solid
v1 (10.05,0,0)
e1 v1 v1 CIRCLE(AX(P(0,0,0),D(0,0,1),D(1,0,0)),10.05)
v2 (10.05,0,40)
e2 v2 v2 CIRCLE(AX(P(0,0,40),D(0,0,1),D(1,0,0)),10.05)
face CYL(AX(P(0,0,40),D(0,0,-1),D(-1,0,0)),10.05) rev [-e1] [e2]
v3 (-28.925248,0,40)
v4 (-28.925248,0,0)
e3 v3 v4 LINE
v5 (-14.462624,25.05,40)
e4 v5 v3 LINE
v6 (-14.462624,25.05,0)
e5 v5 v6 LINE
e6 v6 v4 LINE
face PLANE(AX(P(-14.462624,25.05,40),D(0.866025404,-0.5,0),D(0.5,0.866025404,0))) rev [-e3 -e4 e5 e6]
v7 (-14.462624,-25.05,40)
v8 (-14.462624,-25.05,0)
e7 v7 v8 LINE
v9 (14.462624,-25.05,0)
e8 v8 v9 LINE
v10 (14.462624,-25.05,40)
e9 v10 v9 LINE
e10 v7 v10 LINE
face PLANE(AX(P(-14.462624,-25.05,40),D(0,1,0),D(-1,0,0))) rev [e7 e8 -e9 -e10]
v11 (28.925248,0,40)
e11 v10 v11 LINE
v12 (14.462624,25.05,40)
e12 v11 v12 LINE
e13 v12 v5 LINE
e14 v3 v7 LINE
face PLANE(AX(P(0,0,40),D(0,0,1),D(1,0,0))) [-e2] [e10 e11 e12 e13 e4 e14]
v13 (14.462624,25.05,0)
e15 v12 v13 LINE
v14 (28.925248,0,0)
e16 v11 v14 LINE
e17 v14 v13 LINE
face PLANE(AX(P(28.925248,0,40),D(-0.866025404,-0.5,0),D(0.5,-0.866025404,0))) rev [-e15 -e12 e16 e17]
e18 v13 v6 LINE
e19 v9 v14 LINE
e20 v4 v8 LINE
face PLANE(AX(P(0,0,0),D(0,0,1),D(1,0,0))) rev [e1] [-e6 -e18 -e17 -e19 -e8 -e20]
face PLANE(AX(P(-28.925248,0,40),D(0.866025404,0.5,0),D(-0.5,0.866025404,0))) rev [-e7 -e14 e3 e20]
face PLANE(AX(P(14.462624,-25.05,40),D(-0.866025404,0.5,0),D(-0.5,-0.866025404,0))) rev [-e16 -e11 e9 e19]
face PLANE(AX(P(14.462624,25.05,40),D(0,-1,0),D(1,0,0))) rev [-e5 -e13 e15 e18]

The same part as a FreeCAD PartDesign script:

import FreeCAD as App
import Part
import Sketcher
from FreeCAD import Vector
Q = App.Units.Quantity

doc = App.newDocument("Part")
body = doc.addObject("PartDesign::Body", "Body")

# Sketch on XY plane
sketch1 = body.newObject("Sketcher::SketchObject", "Sketch")
sketch1.AttachmentSupport = (doc.getObject("XY_Plane"), [""])
sketch1.MapMode = "FlatFace"
sketch1.addGeometry([
    Part.LineSegment(Vector(14, 25, 0), Vector(-14, 25, 0)),  # 0
    Part.LineSegment(Vector(-14, 25, 0), Vector(-29, 0, 0)),  # 1
    Part.LineSegment(Vector(-29, 0, 0), Vector(-14, -25, 0)),  # 2
    Part.LineSegment(Vector(-14, -25, 0), Vector(14, -25, 0)),  # 3
    Part.LineSegment(Vector(14, -25, 0), Vector(29, 0, 0)),  # 4
    Part.LineSegment(Vector(29, 0, 0), Vector(14, 25, 0)),  # 5
    Part.Circle(Vector(0, 0, 0), Vector(0, 0, 1), 10),  # 6
], False)
sketch1.addConstraint([
    Sketcher.Constraint("Coincident", 0, 2, 1, 1),
    Sketcher.Constraint("Coincident", 1, 2, 2, 1),
    Sketcher.Constraint("Coincident", 2, 2, 3, 1),
    Sketcher.Constraint("Coincident", 3, 2, 4, 1),
    Sketcher.Constraint("Coincident", 4, 2, 5, 1),
    Sketcher.Constraint("Coincident", 5, 2, 0, 1),
    Sketcher.Constraint("Horizontal", 0),
    Sketcher.Constraint("Horizontal", 3),
    Sketcher.Constraint("Coincident", 6, 3, -1, 1),
    Sketcher.Constraint("Symmetric", 0, 2, 3, 2, -1, 1),
    Sketcher.Constraint("Symmetric", 1, 2, 4, 2, -1, 1),
    Sketcher.Constraint("PointOnObject", 1, 2, -1),
    Sketcher.Constraint("Parallel", 2, 5),
    Sketcher.Constraint("Vertical", 0, 2, 2, 2),
    Sketcher.Constraint("Diameter", 6, 20.1),
    Sketcher.Constraint("Angle", 1, Q("-120 deg")),
    Sketcher.Constraint("DistanceY", 2, 2, 0, 2, 50.1),
    Sketcher.Constraint("DistanceX", 0, 2, 0, 1, 28.925248),
])
pad1 = body.newObject("PartDesign::Pad", "Pad")
pad1.Profile = sketch1
pad1.Length = 40

doc.recompute()
